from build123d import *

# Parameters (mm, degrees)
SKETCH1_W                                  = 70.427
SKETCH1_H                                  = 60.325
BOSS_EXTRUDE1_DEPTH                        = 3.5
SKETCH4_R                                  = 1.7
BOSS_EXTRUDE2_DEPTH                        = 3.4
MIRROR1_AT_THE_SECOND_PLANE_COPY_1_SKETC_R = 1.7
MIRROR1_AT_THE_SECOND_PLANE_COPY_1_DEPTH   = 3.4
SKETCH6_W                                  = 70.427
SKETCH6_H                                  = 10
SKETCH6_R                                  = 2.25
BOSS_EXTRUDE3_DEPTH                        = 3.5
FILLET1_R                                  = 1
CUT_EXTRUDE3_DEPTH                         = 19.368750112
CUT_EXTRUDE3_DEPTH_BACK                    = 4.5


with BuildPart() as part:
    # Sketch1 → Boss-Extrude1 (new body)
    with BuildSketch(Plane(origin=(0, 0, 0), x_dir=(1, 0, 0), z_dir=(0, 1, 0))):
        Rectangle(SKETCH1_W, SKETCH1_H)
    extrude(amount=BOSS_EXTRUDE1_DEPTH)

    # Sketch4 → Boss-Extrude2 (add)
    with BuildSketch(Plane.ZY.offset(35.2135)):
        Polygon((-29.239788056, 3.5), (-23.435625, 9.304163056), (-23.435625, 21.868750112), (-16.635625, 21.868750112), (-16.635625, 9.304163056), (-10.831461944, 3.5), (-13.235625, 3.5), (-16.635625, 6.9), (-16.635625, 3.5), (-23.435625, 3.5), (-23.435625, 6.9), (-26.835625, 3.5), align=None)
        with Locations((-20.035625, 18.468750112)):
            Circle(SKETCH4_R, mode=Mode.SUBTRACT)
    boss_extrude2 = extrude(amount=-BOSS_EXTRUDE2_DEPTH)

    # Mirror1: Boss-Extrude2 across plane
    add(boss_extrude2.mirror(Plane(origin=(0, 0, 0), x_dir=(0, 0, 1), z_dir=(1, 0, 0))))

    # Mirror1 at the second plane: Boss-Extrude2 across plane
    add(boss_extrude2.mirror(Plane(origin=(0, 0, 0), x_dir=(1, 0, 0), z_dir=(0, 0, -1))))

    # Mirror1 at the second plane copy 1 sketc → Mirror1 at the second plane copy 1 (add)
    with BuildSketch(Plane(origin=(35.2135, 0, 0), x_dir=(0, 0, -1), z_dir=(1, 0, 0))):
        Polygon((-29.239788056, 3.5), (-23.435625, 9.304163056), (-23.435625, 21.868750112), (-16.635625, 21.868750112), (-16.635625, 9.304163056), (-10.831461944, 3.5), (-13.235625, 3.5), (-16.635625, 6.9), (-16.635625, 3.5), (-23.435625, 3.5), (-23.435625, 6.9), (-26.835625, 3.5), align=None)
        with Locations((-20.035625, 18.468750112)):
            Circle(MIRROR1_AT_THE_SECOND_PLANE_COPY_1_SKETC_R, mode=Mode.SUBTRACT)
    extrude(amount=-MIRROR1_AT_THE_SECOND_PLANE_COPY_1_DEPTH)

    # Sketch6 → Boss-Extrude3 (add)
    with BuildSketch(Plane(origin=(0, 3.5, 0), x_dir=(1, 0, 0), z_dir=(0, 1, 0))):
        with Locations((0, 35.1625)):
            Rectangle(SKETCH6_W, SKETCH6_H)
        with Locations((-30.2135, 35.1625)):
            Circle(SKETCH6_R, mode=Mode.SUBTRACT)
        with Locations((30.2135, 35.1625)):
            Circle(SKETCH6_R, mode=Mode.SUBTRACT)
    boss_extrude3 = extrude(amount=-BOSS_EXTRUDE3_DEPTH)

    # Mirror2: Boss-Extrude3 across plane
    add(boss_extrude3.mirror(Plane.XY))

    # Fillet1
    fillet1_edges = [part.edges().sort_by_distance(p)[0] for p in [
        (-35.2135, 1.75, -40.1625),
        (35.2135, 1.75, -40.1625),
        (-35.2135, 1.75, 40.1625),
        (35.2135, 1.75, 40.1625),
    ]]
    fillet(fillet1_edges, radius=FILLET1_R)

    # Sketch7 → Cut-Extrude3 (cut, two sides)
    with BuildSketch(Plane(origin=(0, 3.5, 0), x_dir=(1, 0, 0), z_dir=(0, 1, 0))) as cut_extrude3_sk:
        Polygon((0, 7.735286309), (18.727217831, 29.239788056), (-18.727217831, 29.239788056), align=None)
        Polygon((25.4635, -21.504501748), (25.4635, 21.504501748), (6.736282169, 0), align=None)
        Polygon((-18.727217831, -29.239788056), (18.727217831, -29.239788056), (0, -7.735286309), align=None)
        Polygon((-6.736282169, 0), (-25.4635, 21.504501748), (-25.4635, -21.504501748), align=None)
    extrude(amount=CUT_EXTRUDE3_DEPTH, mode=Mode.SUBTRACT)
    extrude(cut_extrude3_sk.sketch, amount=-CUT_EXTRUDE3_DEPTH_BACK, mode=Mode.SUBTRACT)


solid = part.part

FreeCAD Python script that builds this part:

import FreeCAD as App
import Part
import Sketcher

V = App.Vector


def edges_at(feature, points):
    """Names of the edges that pass closest to the given points."""
    edges = feature.Shape.Edges
    near = lambda p: min(range(len(edges)), key=lambda i: edges[i].distToShape(Part.Vertex(*p))[0])
    return sorted({f"Edge{near(p) + 1}" for p in points})


def add_polygon(sketch, points):
    """Adds a closed chain of lines whose ends are joined by coincident constraints."""
    first, n = sketch.GeometryCount, len(points)
    for a, b in zip(points, points[1:] + points[:1]):
        sketch.addGeometry(Part.LineSegment(App.Vector(*a, 0), App.Vector(*b, 0)), False)
    for i in range(n):
        sketch.addConstraint(Sketcher.Constraint("Coincident", first + i, 2, first + (i + 1) % n, 1))

doc = App.newDocument("Part")
body = doc.addObject("PartDesign::Body", "Body")

# Sketch on XZ plane
sketch1 = body.newObject("Sketcher::SketchObject", "Sketch")
sketch1.AttachmentSupport = (doc.getObject("XZ_Plane"), [""])
sketch1.MapMode = "FlatFace"
add_polygon(sketch1, [(-35, -30), (-35, 30), (35, 30), (35, -30)])  # lines 0-3
sketch1.addConstraint([
    Sketcher.Constraint("Vertical", 0),
    Sketcher.Constraint("Horizontal", 1),
    Sketcher.Constraint("Vertical", 2),
    Sketcher.Constraint("Horizontal", 3),
    Sketcher.Constraint("Symmetric", 0, 2, 2, 2, -1, 1),
    Sketcher.Constraint("DistanceX", 1, 1, 1, 2, 70.427),
    Sketcher.Constraint("DistanceY", 0, 1, 0, 2, 60.325),
])
pad1 = body.newObject("PartDesign::Pad", "Pad")
pad1.Profile = sketch1
pad1.Length = 3.5
pad1.Reversed = True

# Sketch on YZ plane
sketch2 = body.newObject("Sketcher::SketchObject", "Sketch001")
sketch2.AttachmentSupport = (doc.getObject("YZ_Plane"), [""])
sketch2.MapMode = "FlatFace"
sketch2.AttachmentOffset = App.Placement(V(0, 0, -35.2135), App.Rotation())
add_polygon(sketch2, [(9.3, -23.4), (3.5, -29.2), (3.5, -26.8), (6.9, -23.4), (3.5, -23.4), (3.5, -16.6), (6.9, -16.6), (3.5, -13.2), (3.5, -10.8), (9.3, -16.6), (21.9, -16.6), (21.9, -23.4)])  # lines 0-11
sketch2.addGeometry(Part.Circle(V(18.5, -20, 0), V(0, 0, 1), 1.7), False)  # 12
sketch2.addConstraint([
    Sketcher.Constraint("Vertical", 1),
    Sketcher.Constraint("Horizontal", 3),
    Sketcher.Constraint("Vertical", 4),
    Sketcher.Constraint("Horizontal", 5),
    Sketcher.Constraint("Vertical", 7),
    Sketcher.Constraint("Horizontal", 9),
    Sketcher.Constraint("Vertical", 10),
    Sketcher.Constraint("Horizontal", 11),
    Sketcher.Constraint("Parallel", 0, 2),
    Sketcher.Constraint("Perpendicular", 2, 6),
    Sketcher.Constraint("Parallel", 6, 8),
    Sketcher.Constraint("Horizontal", 5, 2, 8, 2),
    Sketcher.Constraint("Horizontal", 3, 2, 10, 2),
    Sketcher.Constraint("Vertical", 1, 2, 3, 2),
    Sketcher.Constraint("Vertical", 2, 2, 5, 2),
    Sketcher.Constraint("Vertical", 4, 2, 6, 2),
    Sketcher.Constraint("Vertical", 8, 2, 11, 2),
    Sketcher.Constraint("Equal", 1, 7),
    Sketcher.Constraint("Diameter", 12, 3.4),
    Sketcher.Constraint("DistanceX", 3, 2, 3, 1, 3.4),
    Sketcher.Constraint("DistanceY", 4, 1, 4, 2, 6.8),
    Sketcher.Constraint("DistanceX", -1, 1, 0, 2, 3.5),
    Sketcher.Constraint("DistanceY", 1, 2, 12, 3, 6.8),
    Sketcher.Constraint("DistanceX", 12, 3, 9, 2, 3.4),
    Sketcher.Constraint("DistanceX", 9, 1, 9, 2, 12.564587),
    Sketcher.Constraint("DistanceY", 1, 1, 1, 2, 2.404163),
    Sketcher.Constraint("DistanceY", 0, 2, -1, 1, 29.239788),
])
pad2 = body.newObject("PartDesign::Pad", "Pad001")
pad2.Profile = sketch2
pad2.Length = 3.4
doc.recompute()

mirrored = body.newObject("PartDesign::Mirrored", "Mirrored")
mirrored.Originals = [pad2]
mirrored.MirrorPlane = (doc.getObject("YZ_Plane"), [""])
body.Tip = mirrored
doc.recompute()

mirrored2 = body.newObject("PartDesign::Mirrored", "Mirrored001")
mirrored2.Originals = [pad2]
mirrored2.MirrorPlane = (doc.getObject("XY_Plane"), [""])
body.Tip = mirrored2

# Sketch on YZ plane
sketch3 = body.newObject("Sketcher::SketchObject", "Sketch002")
sketch3.AttachmentSupport = (doc.getObject("YZ_Plane"), [""])
sketch3.MapMode = "FlatFace"
sketch3.AttachmentOffset = App.Placement(V(0, 0, 35.2135), App.Rotation())
add_polygon(sketch3, [(9.3, 23.4), (3.5, 29.2), (3.5, 26.8), (6.9, 23.4), (3.5, 23.4), (3.5, 16.6), (6.9, 16.6), (3.5, 13.2), (3.5, 10.8), (9.3, 16.6), (21.9, 16.6), (21.9, 23.4)])  # lines 0-11
sketch3.addGeometry(Part.Circle(V(18.5, 20, 0), V(0, 0, 1), 1.7), False)  # 12
sketch3.addConstraint([
    Sketcher.Constraint("Vertical", 1),
    Sketcher.Constraint("Horizontal", 3),
    Sketcher.Constraint("Vertical", 4),
    Sketcher.Constraint("Horizontal", 5),
    Sketcher.Constraint("Vertical", 7),
    Sketcher.Constraint("Horizontal", 9),
    Sketcher.Constraint("Vertical", 10),
    Sketcher.Constraint("Horizontal", 11),
    Sketcher.Constraint("Parallel", 0, 2),
    Sketcher.Constraint("Perpendicular", 2, 6),
    Sketcher.Constraint("Parallel", 6, 8),
    Sketcher.Constraint("Horizontal", 5, 2, 8, 2),
    Sketcher.Constraint("Horizontal", 3, 2, 10, 2),
    Sketcher.Constraint("Vertical", 1, 2, 3, 2),
    Sketcher.Constraint("Vertical", 2, 2, 5, 2),
    Sketcher.Constraint("Vertical", 4, 2, 6, 2),
    Sketcher.Constraint("Vertical", 8, 2, 11, 2),
    Sketcher.Constraint("Equal", 1, 7),
    Sketcher.Constraint("Diameter", 12, 3.4),
    Sketcher.Constraint("DistanceX", 3, 2, 3, 1, 3.4),
    Sketcher.Constraint("DistanceY", 4, 2, 4, 1, 6.8),
    Sketcher.Constraint("DistanceX", -1, 1, 0, 2, 3.5),
    Sketcher.Constraint("DistanceY", 12, 3, 1, 2, 6.8),
    Sketcher.Constraint("DistanceX", 12, 3, 9, 2, 3.4),
    Sketcher.Constraint("DistanceX", 9, 1, 9, 2, 12.564587),
    Sketcher.Constraint("DistanceY", 1, 2, 1, 1, 2.404163),
    Sketcher.Constraint("DistanceY", -1, 1, 0, 2, 29.239788),
])
pad3 = body.newObject("PartDesign::Pad", "Pad002")
pad3.Profile = sketch3
pad3.Length = 3.4
pad3.Reversed = True

# Sketch on XZ plane
sketch4 = body.newObject("Sketcher::SketchObject", "Sketch003")
sketch4.AttachmentSupport = (doc.getObject("XZ_Plane"), [""])
sketch4.MapMode = "FlatFace"
sketch4.AttachmentOffset = App.Placement(V(0, 0, -3.5), App.Rotation())
add_polygon(sketch4, [(-35.2, -40.2), (-35.2, -30.2), (35.2, -30.2), (35.2, -40.2)])  # lines 0-3
sketch4.addGeometry(Part.Circle(V(-30.2, -35.2, 0), V(0, 0, 1), 2.2), False)  # 4
sketch4.addGeometry(Part.Circle(V(30.2, -35.2, 0), V(0, 0, 1), 2.2), False)  # 5
sketch4.addConstraint([
    Sketcher.Constraint("Vertical", 0),
    Sketcher.Constraint("Horizontal", 1),
    Sketcher.Constraint("Vertical", 2),
    Sketcher.Constraint("Horizontal", 3),
    Sketcher.Constraint("Equal", 4, 5),
    Sketcher.Constraint("Symmetric", 4, 3, 5, 3, -2),
    Sketcher.Constraint("Diameter", 4, 4.5),
    Sketcher.Constraint("DistanceY", 0, 1, 0, 2, 10.0),
    Sketcher.Constraint("DistanceX", 0, 2, 4, 3, 5.0),
    Sketcher.Constraint("DistanceY", 4, 3, 0, 2, 5.0),
    Sketcher.Constraint("DistanceX", 5, 3, 1, 2, 5.0),
    Sketcher.Constraint("DistanceX", 1, 1, 1, 2, 70.427),
    Sketcher.Constraint("DistanceY", 4, 3, -1, 1, 35.1625),
])
pad4 = body.newObject("PartDesign::Pad", "Pad003")
pad4.Profile = sketch4
pad4.Length = 3.5
doc.recompute()

mirrored3 = body.newObject("PartDesign::Mirrored", "Mirrored002")
mirrored3.Originals = [pad4]
mirrored3.MirrorPlane = (doc.getObject("XY_Plane"), [""])
body.Tip = mirrored3
doc.recompute()

fillet = body.newObject("PartDesign::Fillet", "Fillet")
fillet.Base = (mirrored3, edges_at(mirrored3, [
    (-35.214, 1.75, -40.163),
    (35.214, 1.75, -40.163),
    (-35.214, 1.75, 40.163),
    (35.214, 1.75, 40.163),
]))
fillet.Radius = 1

# Sketch on XZ plane
sketch5 = body.newObject("Sketcher::SketchObject", "Sketch004")
sketch5.AttachmentSupport = (doc.getObject("XZ_Plane"), [""])
sketch5.MapMode = "FlatFace"
sketch5.AttachmentOffset = App.Placement(V(0, 0, -3.5), App.Rotation())
add_polygon(sketch5, [(0, -8), (19, -29), (-19, -29)])  # lines 0-2
add_polygon(sketch5, [(25, 22), (25, -22), (7, 0)])  # lines 3-5
add_polygon(sketch5, [(-19, 29), (19, 29), (0, 8)])  # lines 6-8
add_polygon(sketch5, [(-7, 0), (-25, -22), (-25, 22)])  # lines 9-11
sketch5.addConstraint([
    Sketcher.Constraint("Horizontal", 1),
    Sketcher.Constraint("Vertical", 3),
    Sketcher.Constraint("Horizontal", 6),
    Sketcher.Constraint("Vertical", 10),
    Sketcher.Constraint("Symmetric", 1, 2, 6, 2, -1, 1),
    Sketcher.Constraint("Symmetric", 2, 2, 7, 2, -1, 1),
    Sketcher.Constraint("Symmetric", 5, 2, 9, 2, -1, 1),
    Sketcher.Constraint("Symmetric", 4, 2, 11, 2, -1, 1),
    Sketcher.Constraint("PointOnObject", 2, 2, -2),
    Sketcher.Constraint("PointOnObject", 4, 2, -1),
    Sketcher.Constraint("Parallel", 0, 4),
    Sketcher.Constraint("Parallel", 2, 5),
    Sketcher.Constraint("Parallel", 4, 8),
    Sketcher.Constraint("Parallel", 8, 11),
    Sketcher.Constraint("Horizontal", 3, 2, 9, 2),
    Sketcher.Constraint("Equal", 2, 4),
    Sketcher.Constraint("DistanceX", -1, 1, 3, 2, 25.4635),
    Sketcher.Constraint("DistanceY", 3, 2, -1, 1, 21.504502),
    Sketcher.Constraint("DistanceX", 1, 2, 1, 1, 37.454436),
    Sketcher.Constraint("DistanceY", 0, 2, -1, 1, 29.239788),
])
pocket1 = body.newObject("PartDesign::Pocket", "Pocket")
pocket1.Profile = sketch5
pocket1.Type = "ThroughAll"
pocket1.Midplane = True

doc.recompute()
